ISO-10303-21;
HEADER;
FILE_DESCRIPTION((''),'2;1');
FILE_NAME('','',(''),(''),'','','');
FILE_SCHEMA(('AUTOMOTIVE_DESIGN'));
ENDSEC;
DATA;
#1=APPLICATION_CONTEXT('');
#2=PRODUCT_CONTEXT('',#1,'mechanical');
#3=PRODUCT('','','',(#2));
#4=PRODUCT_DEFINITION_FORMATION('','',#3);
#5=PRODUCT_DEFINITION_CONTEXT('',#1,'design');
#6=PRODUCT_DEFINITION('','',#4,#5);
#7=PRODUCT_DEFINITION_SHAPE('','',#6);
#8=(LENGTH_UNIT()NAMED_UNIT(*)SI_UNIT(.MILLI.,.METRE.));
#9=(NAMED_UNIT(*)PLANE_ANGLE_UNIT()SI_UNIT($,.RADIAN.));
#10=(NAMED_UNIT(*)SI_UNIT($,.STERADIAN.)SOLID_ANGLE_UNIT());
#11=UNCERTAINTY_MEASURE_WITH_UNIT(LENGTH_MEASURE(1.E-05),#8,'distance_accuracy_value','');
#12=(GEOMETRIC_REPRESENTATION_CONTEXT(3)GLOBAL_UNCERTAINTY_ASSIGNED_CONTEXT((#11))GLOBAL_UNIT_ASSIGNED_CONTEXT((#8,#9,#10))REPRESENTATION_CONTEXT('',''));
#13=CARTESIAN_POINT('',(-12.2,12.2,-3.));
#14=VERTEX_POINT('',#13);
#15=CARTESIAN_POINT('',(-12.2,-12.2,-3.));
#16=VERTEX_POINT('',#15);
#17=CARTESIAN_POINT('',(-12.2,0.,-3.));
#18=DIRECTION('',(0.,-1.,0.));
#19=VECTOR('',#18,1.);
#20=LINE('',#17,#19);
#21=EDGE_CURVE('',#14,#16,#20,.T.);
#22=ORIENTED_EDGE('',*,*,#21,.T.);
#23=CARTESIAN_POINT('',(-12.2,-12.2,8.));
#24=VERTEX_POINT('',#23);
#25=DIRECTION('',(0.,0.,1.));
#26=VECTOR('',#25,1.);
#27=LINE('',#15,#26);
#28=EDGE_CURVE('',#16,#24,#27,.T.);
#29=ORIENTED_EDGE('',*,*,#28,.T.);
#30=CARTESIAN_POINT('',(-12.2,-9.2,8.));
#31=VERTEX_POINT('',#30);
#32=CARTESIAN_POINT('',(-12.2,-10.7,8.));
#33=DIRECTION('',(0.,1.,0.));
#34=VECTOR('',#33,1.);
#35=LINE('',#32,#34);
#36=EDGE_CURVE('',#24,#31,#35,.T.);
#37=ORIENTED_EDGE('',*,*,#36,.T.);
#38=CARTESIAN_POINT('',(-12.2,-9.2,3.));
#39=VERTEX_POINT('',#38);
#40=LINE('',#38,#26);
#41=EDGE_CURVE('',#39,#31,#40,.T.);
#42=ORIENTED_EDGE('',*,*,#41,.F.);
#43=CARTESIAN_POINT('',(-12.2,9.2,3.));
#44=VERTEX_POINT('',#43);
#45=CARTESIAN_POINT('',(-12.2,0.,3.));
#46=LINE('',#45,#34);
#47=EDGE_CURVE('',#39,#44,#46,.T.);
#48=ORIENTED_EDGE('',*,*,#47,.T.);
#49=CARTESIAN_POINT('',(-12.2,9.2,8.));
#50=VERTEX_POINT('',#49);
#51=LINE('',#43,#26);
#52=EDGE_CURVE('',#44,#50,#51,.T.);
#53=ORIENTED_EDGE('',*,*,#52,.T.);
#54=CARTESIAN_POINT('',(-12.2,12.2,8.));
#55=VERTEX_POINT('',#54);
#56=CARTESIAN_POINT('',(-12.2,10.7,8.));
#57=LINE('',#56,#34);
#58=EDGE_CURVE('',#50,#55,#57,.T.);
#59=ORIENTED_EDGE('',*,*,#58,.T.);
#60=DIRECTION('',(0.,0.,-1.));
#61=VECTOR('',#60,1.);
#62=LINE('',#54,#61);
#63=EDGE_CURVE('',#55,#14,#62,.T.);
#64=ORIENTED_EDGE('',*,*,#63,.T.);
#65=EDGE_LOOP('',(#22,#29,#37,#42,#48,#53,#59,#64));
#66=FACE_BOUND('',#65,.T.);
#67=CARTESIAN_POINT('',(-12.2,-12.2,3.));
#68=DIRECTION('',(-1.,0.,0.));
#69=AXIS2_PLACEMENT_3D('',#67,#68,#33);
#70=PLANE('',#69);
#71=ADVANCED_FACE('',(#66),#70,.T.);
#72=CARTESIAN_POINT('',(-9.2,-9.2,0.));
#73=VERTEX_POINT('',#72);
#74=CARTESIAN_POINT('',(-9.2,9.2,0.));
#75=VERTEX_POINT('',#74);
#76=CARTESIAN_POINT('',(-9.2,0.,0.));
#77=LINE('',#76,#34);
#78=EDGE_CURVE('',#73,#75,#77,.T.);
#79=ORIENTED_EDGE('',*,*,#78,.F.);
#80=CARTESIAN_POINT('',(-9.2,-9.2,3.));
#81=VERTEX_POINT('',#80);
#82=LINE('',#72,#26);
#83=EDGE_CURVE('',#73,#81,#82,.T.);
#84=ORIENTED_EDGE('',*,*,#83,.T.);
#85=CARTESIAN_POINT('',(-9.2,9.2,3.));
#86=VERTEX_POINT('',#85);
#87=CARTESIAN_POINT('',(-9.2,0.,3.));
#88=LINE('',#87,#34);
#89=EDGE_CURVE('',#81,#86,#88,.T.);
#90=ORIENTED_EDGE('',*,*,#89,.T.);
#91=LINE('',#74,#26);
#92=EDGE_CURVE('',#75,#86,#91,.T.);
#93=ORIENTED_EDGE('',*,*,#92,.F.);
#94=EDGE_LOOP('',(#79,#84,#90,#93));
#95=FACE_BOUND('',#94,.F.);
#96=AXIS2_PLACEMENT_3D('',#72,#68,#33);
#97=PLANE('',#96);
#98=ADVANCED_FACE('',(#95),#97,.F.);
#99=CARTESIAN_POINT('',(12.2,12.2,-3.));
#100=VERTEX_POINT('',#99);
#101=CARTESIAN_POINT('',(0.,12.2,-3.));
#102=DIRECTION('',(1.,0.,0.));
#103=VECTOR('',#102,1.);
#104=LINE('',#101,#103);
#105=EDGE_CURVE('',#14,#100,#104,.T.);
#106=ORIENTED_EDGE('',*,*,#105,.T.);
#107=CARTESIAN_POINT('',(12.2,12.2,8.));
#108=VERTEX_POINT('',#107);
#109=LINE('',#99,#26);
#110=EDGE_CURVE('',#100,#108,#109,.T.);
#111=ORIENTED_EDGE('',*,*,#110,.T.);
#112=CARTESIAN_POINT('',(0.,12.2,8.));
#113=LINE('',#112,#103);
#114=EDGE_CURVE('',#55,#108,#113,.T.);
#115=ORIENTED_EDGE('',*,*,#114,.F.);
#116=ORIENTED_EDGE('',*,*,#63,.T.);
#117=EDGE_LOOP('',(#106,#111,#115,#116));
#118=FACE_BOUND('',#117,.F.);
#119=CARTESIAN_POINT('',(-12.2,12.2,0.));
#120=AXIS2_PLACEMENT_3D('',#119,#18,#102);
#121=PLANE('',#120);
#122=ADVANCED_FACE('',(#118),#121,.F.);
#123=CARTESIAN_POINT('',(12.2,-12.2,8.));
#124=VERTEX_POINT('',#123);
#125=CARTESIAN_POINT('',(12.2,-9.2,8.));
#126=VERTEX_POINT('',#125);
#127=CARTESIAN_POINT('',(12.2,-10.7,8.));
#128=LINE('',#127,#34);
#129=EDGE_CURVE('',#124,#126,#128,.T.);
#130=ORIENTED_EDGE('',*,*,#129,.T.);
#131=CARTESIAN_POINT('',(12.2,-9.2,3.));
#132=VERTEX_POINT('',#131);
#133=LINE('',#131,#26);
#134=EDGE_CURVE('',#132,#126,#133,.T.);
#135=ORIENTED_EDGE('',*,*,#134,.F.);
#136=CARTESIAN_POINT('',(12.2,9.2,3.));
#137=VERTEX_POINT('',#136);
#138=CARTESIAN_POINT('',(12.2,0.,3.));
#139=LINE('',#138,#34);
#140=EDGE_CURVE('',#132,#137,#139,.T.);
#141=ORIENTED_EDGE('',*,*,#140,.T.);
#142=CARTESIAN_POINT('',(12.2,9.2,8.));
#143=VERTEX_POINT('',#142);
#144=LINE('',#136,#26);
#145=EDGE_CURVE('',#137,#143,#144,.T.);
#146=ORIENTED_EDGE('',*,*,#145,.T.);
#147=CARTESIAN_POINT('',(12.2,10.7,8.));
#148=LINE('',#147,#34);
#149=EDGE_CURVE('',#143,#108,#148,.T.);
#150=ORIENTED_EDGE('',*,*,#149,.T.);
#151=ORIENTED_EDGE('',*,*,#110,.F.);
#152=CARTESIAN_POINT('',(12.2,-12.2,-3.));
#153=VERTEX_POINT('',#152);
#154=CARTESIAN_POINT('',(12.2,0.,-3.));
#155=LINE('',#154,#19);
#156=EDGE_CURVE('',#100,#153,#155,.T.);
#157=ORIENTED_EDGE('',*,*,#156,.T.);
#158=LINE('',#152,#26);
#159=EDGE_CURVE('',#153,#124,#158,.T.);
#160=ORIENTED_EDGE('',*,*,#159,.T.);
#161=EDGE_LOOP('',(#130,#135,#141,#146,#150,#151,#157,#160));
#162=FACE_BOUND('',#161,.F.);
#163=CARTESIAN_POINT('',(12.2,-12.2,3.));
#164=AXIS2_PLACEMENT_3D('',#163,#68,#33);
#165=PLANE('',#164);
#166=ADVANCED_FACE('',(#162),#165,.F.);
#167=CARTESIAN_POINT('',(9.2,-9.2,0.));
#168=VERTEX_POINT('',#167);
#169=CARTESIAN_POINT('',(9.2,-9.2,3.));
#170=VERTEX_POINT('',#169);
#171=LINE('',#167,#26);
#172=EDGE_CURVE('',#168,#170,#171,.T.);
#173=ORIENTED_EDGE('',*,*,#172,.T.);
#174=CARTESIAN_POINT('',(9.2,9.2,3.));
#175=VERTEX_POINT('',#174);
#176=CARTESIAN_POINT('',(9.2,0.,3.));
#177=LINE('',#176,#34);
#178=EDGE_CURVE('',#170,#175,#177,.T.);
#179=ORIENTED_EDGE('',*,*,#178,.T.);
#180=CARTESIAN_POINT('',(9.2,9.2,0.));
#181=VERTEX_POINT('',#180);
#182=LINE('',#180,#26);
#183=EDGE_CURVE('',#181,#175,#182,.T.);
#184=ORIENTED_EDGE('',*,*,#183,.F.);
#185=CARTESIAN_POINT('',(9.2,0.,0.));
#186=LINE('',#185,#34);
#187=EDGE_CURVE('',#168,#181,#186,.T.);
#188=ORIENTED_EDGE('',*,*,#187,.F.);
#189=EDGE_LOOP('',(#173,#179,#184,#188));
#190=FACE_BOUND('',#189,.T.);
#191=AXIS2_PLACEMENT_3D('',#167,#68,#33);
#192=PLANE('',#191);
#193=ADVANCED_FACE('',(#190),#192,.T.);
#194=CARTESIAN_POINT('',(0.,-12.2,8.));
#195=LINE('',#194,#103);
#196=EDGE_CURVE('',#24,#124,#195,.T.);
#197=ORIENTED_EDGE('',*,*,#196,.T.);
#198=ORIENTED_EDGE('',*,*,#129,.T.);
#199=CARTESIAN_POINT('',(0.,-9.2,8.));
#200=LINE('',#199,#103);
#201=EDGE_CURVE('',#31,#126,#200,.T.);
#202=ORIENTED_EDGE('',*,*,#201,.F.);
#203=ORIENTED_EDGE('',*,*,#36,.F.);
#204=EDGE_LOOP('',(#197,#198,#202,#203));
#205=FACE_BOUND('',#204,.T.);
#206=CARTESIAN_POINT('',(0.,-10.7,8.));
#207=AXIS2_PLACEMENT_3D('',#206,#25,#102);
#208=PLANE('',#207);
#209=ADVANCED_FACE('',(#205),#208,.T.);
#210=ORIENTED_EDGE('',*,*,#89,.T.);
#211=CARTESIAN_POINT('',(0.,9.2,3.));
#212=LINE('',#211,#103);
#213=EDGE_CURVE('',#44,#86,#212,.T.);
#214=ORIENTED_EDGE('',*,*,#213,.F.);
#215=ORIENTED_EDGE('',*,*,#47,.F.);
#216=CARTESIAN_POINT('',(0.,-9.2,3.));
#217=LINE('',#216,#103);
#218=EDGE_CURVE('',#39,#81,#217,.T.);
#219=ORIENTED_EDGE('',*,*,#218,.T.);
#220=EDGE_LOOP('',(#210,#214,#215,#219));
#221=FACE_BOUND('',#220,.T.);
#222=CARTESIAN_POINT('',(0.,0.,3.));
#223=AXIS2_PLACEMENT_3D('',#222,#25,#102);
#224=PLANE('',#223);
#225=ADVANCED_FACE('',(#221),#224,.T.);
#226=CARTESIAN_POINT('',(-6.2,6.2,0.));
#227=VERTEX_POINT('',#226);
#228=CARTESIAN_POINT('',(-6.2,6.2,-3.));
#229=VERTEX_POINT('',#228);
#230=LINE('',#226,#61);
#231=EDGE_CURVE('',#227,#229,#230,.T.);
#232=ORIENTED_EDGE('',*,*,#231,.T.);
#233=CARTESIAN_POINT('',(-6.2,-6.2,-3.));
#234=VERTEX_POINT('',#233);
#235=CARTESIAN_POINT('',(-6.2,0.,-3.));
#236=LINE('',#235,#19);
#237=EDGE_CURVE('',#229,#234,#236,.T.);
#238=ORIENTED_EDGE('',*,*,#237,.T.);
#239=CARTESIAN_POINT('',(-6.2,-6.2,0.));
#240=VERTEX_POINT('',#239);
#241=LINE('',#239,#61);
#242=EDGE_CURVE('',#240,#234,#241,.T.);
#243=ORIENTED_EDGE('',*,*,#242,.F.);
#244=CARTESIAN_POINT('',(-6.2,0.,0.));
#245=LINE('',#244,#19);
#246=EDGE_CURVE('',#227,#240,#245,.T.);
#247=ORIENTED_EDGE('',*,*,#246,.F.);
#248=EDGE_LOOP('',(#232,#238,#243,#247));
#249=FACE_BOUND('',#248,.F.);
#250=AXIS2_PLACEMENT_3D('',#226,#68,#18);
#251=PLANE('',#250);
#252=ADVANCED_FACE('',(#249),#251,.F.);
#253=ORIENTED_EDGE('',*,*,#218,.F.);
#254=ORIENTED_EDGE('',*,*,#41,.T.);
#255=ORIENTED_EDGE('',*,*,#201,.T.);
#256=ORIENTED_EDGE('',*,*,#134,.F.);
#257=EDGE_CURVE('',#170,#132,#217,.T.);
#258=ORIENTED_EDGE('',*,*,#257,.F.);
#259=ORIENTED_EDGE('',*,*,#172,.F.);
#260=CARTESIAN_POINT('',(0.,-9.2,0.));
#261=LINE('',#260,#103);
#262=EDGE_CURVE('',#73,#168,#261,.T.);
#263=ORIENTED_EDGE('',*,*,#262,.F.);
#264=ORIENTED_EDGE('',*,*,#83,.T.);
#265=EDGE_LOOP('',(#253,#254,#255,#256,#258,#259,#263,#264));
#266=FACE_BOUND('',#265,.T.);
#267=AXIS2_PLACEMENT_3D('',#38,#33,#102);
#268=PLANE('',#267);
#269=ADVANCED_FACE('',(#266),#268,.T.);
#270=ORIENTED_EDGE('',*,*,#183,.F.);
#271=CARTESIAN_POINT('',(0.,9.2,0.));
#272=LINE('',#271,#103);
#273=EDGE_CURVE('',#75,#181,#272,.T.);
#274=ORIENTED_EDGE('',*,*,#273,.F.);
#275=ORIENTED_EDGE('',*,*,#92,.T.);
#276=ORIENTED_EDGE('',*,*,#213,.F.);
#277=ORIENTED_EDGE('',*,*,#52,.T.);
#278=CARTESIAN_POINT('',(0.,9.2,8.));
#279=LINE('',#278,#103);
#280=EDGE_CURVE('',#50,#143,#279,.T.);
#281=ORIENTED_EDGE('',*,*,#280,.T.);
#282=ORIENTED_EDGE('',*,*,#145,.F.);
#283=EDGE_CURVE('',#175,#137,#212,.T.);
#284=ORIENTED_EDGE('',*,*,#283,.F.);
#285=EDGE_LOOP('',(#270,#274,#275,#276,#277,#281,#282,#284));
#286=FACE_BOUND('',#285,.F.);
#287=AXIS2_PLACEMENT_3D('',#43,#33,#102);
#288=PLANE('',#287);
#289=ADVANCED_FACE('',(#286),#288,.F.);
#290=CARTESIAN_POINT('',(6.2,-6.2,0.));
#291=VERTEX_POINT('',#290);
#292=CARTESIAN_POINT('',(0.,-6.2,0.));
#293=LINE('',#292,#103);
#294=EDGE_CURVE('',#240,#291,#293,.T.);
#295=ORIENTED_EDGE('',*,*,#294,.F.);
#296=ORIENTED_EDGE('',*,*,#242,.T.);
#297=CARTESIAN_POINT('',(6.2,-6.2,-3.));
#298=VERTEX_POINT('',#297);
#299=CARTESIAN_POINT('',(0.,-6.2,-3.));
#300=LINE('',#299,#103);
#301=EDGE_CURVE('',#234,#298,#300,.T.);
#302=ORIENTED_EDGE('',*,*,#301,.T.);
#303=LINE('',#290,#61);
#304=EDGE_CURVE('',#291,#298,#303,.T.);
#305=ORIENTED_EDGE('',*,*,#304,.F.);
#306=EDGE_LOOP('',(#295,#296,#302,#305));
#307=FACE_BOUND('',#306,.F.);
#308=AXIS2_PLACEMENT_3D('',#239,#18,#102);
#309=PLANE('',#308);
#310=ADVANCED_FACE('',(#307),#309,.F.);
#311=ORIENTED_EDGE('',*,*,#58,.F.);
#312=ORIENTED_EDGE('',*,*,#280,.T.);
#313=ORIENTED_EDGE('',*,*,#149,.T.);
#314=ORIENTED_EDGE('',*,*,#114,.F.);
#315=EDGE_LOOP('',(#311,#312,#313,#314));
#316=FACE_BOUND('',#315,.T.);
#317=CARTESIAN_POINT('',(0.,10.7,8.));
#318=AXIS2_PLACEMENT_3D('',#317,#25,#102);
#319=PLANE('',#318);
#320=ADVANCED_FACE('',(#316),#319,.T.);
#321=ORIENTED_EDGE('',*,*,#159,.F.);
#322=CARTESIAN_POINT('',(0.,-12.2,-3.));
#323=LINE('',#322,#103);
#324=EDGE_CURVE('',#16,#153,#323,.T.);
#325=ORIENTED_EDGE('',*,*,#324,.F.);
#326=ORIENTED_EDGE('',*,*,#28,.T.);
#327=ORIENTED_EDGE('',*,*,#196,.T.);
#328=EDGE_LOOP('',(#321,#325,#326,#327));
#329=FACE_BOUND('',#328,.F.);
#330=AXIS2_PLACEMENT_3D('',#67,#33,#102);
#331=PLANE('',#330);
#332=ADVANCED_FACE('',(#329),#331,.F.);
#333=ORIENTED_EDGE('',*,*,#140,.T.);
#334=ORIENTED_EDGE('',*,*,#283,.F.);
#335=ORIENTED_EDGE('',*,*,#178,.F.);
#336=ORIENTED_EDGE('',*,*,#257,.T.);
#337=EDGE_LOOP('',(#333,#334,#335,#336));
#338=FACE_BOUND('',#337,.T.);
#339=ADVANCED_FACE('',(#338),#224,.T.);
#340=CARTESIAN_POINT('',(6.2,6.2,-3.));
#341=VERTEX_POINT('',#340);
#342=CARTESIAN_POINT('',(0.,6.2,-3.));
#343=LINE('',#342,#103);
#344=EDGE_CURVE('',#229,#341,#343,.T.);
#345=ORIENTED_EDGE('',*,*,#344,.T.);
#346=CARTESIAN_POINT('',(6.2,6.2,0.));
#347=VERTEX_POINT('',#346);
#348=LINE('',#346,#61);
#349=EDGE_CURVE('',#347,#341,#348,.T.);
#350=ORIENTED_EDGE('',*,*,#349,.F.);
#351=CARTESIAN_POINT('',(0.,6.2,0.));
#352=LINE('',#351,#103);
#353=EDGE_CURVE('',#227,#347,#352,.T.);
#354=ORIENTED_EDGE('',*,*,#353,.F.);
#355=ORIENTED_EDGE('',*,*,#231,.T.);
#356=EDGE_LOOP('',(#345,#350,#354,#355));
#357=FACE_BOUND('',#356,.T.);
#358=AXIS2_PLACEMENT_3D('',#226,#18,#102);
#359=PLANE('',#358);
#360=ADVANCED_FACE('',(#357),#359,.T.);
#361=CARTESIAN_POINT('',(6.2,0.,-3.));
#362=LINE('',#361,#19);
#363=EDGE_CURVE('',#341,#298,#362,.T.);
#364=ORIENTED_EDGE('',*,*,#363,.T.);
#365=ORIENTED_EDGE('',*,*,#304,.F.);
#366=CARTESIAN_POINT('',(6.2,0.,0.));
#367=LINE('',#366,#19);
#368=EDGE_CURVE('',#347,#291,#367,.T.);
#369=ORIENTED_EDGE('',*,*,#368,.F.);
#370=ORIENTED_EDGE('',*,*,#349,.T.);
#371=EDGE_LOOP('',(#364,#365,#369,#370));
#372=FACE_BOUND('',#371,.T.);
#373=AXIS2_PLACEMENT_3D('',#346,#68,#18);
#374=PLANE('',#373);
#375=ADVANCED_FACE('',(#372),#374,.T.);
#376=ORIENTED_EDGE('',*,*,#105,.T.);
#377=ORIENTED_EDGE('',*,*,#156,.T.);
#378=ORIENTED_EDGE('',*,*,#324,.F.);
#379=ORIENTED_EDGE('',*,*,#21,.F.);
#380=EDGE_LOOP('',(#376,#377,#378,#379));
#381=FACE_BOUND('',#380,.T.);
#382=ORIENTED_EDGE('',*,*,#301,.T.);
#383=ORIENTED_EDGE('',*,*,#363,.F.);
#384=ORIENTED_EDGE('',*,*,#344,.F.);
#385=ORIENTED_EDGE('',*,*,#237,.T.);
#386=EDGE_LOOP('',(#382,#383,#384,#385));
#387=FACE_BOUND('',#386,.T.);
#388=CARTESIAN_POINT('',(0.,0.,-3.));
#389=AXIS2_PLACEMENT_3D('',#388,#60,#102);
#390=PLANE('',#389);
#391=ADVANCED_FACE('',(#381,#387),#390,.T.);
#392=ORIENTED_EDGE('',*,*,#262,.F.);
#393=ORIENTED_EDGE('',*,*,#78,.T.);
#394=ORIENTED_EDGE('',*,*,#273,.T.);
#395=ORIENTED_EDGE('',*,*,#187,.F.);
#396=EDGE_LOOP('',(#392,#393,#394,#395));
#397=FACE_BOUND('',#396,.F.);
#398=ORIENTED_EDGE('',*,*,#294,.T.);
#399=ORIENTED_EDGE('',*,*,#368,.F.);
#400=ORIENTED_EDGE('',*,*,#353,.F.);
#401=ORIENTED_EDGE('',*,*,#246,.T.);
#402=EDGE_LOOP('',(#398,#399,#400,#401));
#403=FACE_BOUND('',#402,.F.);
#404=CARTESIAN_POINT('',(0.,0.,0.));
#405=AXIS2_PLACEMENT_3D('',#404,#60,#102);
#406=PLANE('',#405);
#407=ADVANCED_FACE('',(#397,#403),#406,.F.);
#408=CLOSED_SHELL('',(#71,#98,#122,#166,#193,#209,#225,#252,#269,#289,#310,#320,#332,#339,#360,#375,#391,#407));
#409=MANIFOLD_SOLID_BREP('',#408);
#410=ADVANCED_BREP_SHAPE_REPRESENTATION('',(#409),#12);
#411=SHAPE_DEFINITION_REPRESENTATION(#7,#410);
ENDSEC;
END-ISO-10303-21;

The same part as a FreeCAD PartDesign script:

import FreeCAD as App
import Part
import Sketcher
from FreeCAD import Vector


def add_polygon(sketch, points):
    """Adds a closed chain of lines whose ends are joined by coincident constraints."""
    first, n = sketch.GeometryCount, len(points)
    for a, b in zip(points, points[1:] + points[:1]):
        sketch.addGeometry(Part.LineSegment(App.Vector(*a, 0), App.Vector(*b, 0)), False)
    for i in range(n):
        sketch.addConstraint(Sketcher.Constraint("Coincident", first + i, 2, first + (i + 1) % n, 1))

doc = App.newDocument("Part")
body = doc.addObject("PartDesign::Body", "Body")

# Sketch on XY plane
sketch1 = body.newObject("Sketcher::SketchObject", "Sketch")
sketch1.AttachmentSupport = (doc.getObject("XY_Plane"), [""])
sketch1.MapMode = "FlatFace"
add_polygon(sketch1, [(-12.2, 12.2), (-12.2, -12.2), (12.2, -12.2), (12.2, 12.2)])  # lines 0-3
add_polygon(sketch1, [(9.2, -9.2), (-9.2, -9.2), (-9.2, 9.2), (9.2, 9.2)])  # lines 4-7
sketch1.addConstraint(Sketcher.Constraint("Vertical", 0))
sketch1.addConstraint(Sketcher.Constraint("Horizontal", 1))
sketch1.addConstraint(Sketcher.Constraint("Vertical", 2))
sketch1.addConstraint(Sketcher.Constraint("Horizontal", 3))
sketch1.addConstraint(Sketcher.Constraint("Horizontal", 4))
sketch1.addConstraint(Sketcher.Constraint("Vertical", 5))
sketch1.addConstraint(Sketcher.Constraint("Horizontal", 6))
sketch1.addConstraint(Sketcher.Constraint("Vertical", 7))
sketch1.addConstraint(Sketcher.Constraint("Symmetric", 0, 2, 2, 2, -1, 1))
sketch1.addConstraint(Sketcher.Constraint("Symmetric", 4, 2, 6, 2, -1, 1))
sketch1.addConstraint(Sketcher.Constraint("Equal", 3, 0))
sketch1.addConstraint(Sketcher.Constraint("Equal", 6, 5))
sketch1.addConstraint(Sketcher.Constraint("DistanceX", 1, 1, 1, 2, 24.4))
sketch1.addConstraint(Sketcher.Constraint("DistanceX", 4, 2, 4, 1, 18.4))
pad1 = body.newObject("PartDesign::Pad", "Pad")
pad1.Profile = sketch1
pad1.Length = 3

# Sketch on XY plane
sketch2 = body.newObject("Sketcher::SketchObject", "Sketch001")
sketch2.AttachmentSupport = (doc.getObject("XY_Plane"), [""])
sketch2.MapMode = "FlatFace"
add_polygon(sketch2, [(-12.2, -12.2), (-12.2, 12.2), (12.2, 12.2), (12.2, -12.2)])  # lines 0-3
add_polygon(sketch2, [(6.2, 6.2), (-6.2, 6.2), (-6.2, -6.2), (6.2, -6.2)])  # lines 4-7
sketch2.addConstraint(Sketcher.Constraint("Vertical", 0))
sketch2.addConstraint(Sketcher.Constraint("Horizontal", 1))
sketch2.addConstraint(Sketcher.Constraint("Vertical", 2))
sketch2.addConstraint(Sketcher.Constraint("Horizontal", 3))
sketch2.addConstraint(Sketcher.Constraint("Horizontal", 4))
sketch2.addConstraint(Sketcher.Constraint("Vertical", 5))
sketch2.addConstraint(Sketcher.Constraint("Horizontal", 6))
sketch2.addConstraint(Sketcher.Constraint("Vertical", 7))
sketch2.addConstraint(Sketcher.Constraint("Symmetric", 0, 2, 2, 2, -1, 1))
sketch2.addConstraint(Sketcher.Constraint("Symmetric", 4, 2, 6, 2, -1, 1))
sketch2.addConstraint(Sketcher.Constraint("Equal", 3, 0))
sketch2.addConstraint(Sketcher.Constraint("Equal", 6, 5))
sketch2.addConstraint(Sketcher.Constraint("DistanceX", 1, 1, 1, 2, 24.4))
sketch2.addConstraint(Sketcher.Constraint("DistanceX", 4, 2, 4, 1, 12.4))
pad2 = body.newObject("PartDesign::Pad", "Pad001")
pad2.Profile = sketch2
pad2.Length = 3
pad2.Reversed = True

# Sketch on XY plane
sketch3 = body.newObject("Sketcher::SketchObject", "Sketch002")
sketch3.AttachmentSupport = (doc.getObject("XY_Plane"), [""])
sketch3.MapMode = "FlatFace"
sketch3.AttachmentOffset = App.Placement(Vector(0, 0, 3), App.Rotation())
add_polygon(sketch3, [(-12.2, -9.2), (-12.2, -12.2), (12.2, -12.2), (12.2, -9.2)])  # lines 0-3
add_polygon(sketch3, [(-12.2, 12.2), (-12.2, 9.2), (12.2, 9.2), (12.2, 12.2)])  # lines 4-7
sketch3.addConstraint(Sketcher.Constraint("Vertical", 0))
sketch3.addConstraint(Sketcher.Constraint("Horizontal", 1))
sketch3.addConstraint(Sketcher.Constraint("Vertical", 2))
sketch3.addConstraint(Sketcher.Constraint("Horizontal", 3))
sketch3.addConstraint(Sketcher.Constraint("Vertical", 4))
sketch3.addConstraint(Sketcher.Constraint("Horizontal", 5))
sketch3.addConstraint(Sketcher.Constraint("Vertical", 6))
sketch3.addConstraint(Sketcher.Constraint("Horizontal", 7))
sketch3.addConstraint(Sketcher.Constraint("Symmetric", 2, 2, 4, 2, -1, 1))
sketch3.addConstraint(Sketcher.Constraint("Symmetric", 0, 2, 6, 2, -1, 1))
sketch3.addConstraint(Sketcher.Constraint("Vertical", 3, 2, 4, 2))
sketch3.addConstraint(Sketcher.Constraint("DistanceY", 0, 2, 0, 1, 3.0))
sketch3.addConstraint(Sketcher.Constraint("DistanceX", 1, 1, 1, 2, 24.4))
sketch3.addConstraint(Sketcher.Constraint("DistanceY", 0, 2, -1, 1, 12.2))
pad3 = body.newObject("PartDesign::Pad", "Pad002")
pad3.Profile = sketch3
pad3.Length = 5

doc.recompute()
